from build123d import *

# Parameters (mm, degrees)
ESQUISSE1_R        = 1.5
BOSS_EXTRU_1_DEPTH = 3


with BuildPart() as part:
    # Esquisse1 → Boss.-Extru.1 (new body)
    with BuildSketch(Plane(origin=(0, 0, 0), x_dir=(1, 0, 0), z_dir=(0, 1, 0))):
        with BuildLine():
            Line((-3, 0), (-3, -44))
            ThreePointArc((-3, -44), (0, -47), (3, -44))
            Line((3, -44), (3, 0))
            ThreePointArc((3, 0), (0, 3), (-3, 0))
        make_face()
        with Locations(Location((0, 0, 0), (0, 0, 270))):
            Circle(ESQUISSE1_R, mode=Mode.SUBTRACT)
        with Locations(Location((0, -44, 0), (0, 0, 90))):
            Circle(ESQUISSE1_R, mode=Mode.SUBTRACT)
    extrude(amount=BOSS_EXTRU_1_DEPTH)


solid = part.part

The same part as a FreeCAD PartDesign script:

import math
import FreeCAD as App
import Part
import Sketcher
from FreeCAD import Vector
Q = App.Units.Quantity

doc = App.newDocument("Part")
body = doc.addObject("PartDesign::Body", "Body")

# Sketch on XZ plane
sketch1 = body.newObject("Sketcher::SketchObject", "Sketch")
sketch1.AttachmentSupport = (doc.getObject("XZ_Plane"), [""])
sketch1.MapMode = "FlatFace"
sketch1.addGeometry([
    Part.LineSegment(Vector(-3, 0, 0), Vector(-3, 44, 0)),  # 0
    Part.ArcOfCircle(Part.Circle(Vector(0, 44, 0), Vector(0, 0, 1), 3), math.radians(0), math.radians(180)),  # 1
    Part.LineSegment(Vector(3, 44, 0), Vector(3, 0, 0)),  # 2
    Part.ArcOfCircle(Part.Circle(Vector(0, 0, 0), Vector(0, 0, 1), 3), math.radians(180), math.radians(360)),  # 3
    Part.Circle(Vector(0, 44, 0), Vector(0, 0, 1), 1.5),  # 4
    Part.Circle(Vector(0, 0, 0), Vector(0, 0, 1), 1.5),  # 5
], False)
sketch1.addConstraint([
    Sketcher.Constraint("Tangent", 0, 2, 1, 2),
    Sketcher.Constraint("Tangent", 1, 1, 2, 1),
    Sketcher.Constraint("Tangent", 2, 2, 3, 2),
    Sketcher.Constraint("Tangent", 3, 1, 0, 1),
    Sketcher.Constraint("Vertical", 0),
    Sketcher.Constraint("Vertical", 2),
    Sketcher.Constraint("Coincident", 3, 3, -1, 1),
    Sketcher.Constraint("Coincident", 5, 3, -1, 1),
    Sketcher.Constraint("Coincident", 4, 3, 1, 3),
    Sketcher.Constraint("Equal", 4, 5),
    Sketcher.Constraint("Diameter", 4, Q("3 mm")),
    Sketcher.Constraint("Radius", 1, Q("3 mm")),
    Sketcher.Constraint("DistanceY", 0, 1, 0, 2, Q("44 mm")),
])
pad1 = body.newObject("PartDesign::Pad", "Pad")
pad1.Profile = sketch1
pad1.Length = 3
pad1.Reversed = True

doc.recompute()
